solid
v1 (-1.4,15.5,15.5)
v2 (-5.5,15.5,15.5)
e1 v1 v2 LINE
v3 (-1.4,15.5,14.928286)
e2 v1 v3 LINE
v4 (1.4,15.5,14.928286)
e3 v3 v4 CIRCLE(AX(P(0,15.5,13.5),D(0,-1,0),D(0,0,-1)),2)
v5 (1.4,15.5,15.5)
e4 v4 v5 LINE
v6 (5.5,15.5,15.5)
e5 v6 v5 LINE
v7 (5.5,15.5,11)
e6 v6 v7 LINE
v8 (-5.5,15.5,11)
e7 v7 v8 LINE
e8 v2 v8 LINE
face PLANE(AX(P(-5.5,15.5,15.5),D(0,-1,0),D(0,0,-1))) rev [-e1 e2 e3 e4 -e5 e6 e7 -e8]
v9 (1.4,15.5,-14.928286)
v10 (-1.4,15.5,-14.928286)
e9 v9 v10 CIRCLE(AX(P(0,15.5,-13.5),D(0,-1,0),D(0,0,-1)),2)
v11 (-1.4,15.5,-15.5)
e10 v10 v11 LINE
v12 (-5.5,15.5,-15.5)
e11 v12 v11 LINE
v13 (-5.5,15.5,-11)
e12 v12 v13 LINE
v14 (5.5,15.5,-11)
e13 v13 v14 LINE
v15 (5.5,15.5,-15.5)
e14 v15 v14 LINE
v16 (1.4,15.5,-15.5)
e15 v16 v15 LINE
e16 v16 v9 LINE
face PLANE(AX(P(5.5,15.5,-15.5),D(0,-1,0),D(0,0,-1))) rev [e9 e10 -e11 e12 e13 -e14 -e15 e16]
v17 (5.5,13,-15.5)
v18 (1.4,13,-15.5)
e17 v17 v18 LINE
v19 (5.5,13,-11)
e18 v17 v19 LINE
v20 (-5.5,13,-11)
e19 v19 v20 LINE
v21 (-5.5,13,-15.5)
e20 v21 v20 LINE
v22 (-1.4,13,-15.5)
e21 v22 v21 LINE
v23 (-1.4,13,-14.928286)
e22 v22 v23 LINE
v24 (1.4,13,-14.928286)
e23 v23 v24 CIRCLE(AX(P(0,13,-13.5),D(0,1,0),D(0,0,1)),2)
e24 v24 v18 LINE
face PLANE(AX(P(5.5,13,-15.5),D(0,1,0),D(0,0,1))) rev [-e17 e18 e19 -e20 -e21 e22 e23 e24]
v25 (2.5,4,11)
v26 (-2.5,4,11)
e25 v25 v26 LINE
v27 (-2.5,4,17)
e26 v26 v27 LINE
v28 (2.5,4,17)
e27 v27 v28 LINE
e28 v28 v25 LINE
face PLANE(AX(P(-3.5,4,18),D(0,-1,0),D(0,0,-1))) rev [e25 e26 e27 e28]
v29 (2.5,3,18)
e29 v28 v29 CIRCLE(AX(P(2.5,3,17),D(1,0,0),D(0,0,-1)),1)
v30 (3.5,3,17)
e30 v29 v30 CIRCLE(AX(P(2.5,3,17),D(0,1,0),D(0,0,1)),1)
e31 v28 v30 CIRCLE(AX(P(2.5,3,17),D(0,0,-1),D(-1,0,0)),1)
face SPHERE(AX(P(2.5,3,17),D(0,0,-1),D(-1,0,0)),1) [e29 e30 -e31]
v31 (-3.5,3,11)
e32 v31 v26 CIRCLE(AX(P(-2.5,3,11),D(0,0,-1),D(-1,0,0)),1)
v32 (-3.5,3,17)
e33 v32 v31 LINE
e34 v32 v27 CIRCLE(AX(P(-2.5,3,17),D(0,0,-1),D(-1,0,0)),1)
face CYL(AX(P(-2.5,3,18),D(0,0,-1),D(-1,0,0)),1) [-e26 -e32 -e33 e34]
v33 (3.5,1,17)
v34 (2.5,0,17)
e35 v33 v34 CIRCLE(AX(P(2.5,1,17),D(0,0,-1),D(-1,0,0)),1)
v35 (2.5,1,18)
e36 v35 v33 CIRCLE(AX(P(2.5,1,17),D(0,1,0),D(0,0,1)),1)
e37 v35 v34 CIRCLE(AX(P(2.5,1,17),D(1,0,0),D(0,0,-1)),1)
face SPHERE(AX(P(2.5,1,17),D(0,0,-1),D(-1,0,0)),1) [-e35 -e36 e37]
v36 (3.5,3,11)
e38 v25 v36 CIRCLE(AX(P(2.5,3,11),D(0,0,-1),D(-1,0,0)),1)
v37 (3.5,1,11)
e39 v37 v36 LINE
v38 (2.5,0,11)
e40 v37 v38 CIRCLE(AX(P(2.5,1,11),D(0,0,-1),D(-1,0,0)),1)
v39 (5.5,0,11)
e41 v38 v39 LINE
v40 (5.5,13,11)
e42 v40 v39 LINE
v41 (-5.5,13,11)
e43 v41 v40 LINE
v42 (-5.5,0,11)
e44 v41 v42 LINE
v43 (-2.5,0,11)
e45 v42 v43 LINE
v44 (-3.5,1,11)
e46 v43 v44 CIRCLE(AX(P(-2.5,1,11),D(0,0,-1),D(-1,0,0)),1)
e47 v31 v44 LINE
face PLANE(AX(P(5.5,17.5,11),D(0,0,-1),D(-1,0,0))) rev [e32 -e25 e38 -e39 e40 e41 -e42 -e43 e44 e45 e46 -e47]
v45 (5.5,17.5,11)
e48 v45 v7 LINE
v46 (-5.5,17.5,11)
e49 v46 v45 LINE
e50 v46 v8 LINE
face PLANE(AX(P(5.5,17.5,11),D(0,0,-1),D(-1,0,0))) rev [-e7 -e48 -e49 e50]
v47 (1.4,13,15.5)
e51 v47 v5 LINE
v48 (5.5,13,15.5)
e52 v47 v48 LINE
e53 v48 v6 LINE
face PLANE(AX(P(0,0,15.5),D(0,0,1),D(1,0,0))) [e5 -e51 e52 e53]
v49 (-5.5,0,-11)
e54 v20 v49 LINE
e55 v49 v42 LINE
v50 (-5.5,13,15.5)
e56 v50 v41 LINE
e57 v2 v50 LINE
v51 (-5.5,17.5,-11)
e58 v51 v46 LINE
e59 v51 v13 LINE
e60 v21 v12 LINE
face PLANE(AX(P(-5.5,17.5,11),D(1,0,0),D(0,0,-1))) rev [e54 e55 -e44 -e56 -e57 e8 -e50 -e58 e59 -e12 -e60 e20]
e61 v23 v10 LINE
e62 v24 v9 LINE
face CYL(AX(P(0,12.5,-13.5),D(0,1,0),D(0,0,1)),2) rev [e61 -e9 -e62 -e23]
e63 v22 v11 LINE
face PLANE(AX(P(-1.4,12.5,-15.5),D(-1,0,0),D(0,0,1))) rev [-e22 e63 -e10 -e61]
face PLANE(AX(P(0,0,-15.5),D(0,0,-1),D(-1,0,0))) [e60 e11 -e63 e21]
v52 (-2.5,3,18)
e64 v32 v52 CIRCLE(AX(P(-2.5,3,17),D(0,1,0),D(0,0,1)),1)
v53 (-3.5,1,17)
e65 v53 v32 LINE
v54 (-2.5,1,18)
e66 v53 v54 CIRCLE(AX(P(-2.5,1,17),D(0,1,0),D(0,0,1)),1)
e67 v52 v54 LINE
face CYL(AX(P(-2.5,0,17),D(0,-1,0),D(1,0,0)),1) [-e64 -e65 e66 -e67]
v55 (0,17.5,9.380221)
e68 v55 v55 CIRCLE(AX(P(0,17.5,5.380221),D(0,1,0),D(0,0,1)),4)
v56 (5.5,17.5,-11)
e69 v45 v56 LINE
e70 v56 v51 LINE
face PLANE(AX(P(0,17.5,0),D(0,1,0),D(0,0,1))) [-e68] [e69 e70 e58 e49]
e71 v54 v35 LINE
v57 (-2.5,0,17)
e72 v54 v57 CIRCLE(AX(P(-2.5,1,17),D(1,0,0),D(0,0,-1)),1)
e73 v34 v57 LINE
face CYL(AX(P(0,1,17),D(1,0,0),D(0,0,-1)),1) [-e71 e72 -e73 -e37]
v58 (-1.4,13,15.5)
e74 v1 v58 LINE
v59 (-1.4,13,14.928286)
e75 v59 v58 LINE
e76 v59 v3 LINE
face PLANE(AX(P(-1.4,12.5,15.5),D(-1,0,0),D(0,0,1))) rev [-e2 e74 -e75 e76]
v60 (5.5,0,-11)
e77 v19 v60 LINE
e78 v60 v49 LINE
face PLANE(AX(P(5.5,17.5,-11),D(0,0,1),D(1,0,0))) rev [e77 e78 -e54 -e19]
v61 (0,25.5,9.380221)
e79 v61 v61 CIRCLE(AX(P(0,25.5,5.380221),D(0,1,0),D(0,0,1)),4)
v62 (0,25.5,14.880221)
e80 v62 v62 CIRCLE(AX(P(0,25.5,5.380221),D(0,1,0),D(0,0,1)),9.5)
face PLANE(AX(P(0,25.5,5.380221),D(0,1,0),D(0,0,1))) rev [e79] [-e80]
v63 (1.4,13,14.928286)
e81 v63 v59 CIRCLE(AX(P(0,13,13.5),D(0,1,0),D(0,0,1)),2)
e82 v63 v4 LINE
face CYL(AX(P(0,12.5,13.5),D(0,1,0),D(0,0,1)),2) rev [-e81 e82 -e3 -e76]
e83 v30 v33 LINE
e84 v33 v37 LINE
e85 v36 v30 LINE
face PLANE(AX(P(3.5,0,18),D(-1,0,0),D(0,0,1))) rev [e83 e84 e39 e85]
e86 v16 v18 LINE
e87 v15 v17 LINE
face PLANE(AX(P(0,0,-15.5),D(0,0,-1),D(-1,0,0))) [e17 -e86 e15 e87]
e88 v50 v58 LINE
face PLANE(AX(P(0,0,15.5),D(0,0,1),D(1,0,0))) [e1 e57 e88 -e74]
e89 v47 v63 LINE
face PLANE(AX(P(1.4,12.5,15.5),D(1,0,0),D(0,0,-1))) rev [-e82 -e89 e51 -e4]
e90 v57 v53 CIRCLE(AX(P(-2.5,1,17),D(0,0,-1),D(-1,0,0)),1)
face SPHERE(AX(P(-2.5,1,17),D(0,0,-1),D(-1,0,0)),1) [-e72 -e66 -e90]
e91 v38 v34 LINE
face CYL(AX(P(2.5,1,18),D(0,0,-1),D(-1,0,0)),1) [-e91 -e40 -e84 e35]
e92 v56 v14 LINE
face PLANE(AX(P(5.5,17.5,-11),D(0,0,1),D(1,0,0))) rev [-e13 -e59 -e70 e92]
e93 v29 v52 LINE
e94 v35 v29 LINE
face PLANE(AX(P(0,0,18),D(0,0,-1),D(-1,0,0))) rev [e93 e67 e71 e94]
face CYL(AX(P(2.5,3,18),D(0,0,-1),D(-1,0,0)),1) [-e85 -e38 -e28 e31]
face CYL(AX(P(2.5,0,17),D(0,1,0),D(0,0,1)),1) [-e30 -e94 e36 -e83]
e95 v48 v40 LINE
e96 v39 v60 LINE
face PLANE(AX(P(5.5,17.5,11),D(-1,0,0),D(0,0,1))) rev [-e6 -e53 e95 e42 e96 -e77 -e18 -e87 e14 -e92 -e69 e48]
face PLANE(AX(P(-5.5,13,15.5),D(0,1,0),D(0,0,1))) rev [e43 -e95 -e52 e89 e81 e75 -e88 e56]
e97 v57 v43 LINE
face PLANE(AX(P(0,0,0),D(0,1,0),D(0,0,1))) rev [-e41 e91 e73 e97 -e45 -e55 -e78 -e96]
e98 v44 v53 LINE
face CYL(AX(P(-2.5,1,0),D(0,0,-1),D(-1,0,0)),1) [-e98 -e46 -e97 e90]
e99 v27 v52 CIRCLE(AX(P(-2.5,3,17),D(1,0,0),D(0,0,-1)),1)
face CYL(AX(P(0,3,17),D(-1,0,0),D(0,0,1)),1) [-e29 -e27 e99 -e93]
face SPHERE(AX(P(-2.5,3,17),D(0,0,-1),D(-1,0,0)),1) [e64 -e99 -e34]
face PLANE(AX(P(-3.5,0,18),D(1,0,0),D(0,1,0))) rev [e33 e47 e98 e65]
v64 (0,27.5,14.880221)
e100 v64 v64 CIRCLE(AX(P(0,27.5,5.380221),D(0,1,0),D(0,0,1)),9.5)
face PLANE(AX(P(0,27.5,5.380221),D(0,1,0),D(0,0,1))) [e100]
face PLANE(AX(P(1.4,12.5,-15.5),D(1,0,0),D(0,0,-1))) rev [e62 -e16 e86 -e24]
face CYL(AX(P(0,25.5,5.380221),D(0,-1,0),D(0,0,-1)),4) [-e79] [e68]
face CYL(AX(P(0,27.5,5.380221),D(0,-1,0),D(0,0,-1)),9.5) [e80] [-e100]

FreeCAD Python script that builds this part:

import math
import FreeCAD as App
import Part
import Sketcher

V = App.Vector


def edges_at(feature, points):
    """Names of the edges that pass closest to the given points."""
    edges = feature.Shape.Edges
    near = lambda p: min(range(len(edges)), key=lambda i: edges[i].distToShape(Part.Vertex(*p))[0])
    return sorted({f"Edge{near(p) + 1}" for p in points})

doc = App.newDocument("Part")
params = doc.addObject("Spreadsheet::Sheet", "Params")
for row, (alias, value) in enumerate([
    ("sketch1_width", "11 mm"),
    ("sketch1_height", "22 mm"),
    ("pad1_length", "17.5 mm"),
    ("sketch2_width", "7 mm"),
    ("sketch2_height", "4 mm"),
    ("pad2_length", "7 mm"),
    ("fillet_radius", "1 mm"),
    ("fillet2_radius", "1 mm"),
    ("sketch3_width", "11 mm"),
    ("sketch3_height", "2.5 mm"),
    ("pad3_length", "4.5 mm"),
    ("sketch4_width", "11 mm"),
    ("sketch4_height", "2.5 mm"),
    ("pad4_length", "4.5 mm"),
    ("sketch5_radius", "2 mm"),
    ("sketch5_width", "2.8 mm"),
    ("pocket1_length", "5 mm"),
    ("sketch6_diameter", "8 mm"),
    ("pad5_length", "8 mm"),
    ("sketch7_diameter", "19 mm"),
    ("pad6_length", "2 mm"),
], start=1):
    params.set(f"A{row}", alias)
    params.set(f"B{row}", "=" + value)
    params.setAlias(f"B{row}", alias)

body = doc.addObject("PartDesign::Body", "Body")

# Sketch on XZ plane
sketch1 = body.newObject("Sketcher::SketchObject", "Sketch")
sketch1.AttachmentSupport = (doc.getObject("XZ_Plane"), [""])
sketch1.MapMode = "FlatFace"
sketch1.addGeometry(Part.LineSegment(V(-5.5, -11, 0), V(-5.5, 11, 0)), False)
sketch1.addGeometry(Part.LineSegment(V(-5.5, 11, 0), V(5.5, 11, 0)), False)
sketch1.addGeometry(Part.LineSegment(V(5.5, 11, 0), V(5.5, -11, 0)), False)
sketch1.addGeometry(Part.LineSegment(V(5.5, -11, 0), V(-5.5, -11, 0)), False)
sketch1.addConstraint(Sketcher.Constraint("Coincident", 0, 2, 1, 1))
sketch1.addConstraint(Sketcher.Constraint("Coincident", 1, 2, 2, 1))
sketch1.addConstraint(Sketcher.Constraint("Coincident", 2, 2, 3, 1))
sketch1.addConstraint(Sketcher.Constraint("Coincident", 3, 2, 0, 1))
sketch1.addConstraint(Sketcher.Constraint("Vertical", 0))
sketch1.addConstraint(Sketcher.Constraint("Horizontal", 1))
sketch1.addConstraint(Sketcher.Constraint("Vertical", 2))
sketch1.addConstraint(Sketcher.Constraint("Horizontal", 3))
sketch1.addConstraint(Sketcher.Constraint("Symmetric", 0, 2, 2, 2, -1, 1))
sketch1.addConstraint(Sketcher.Constraint("DistanceX", 1, 1, 1, 2, 11.0))
sketch1.addConstraint(Sketcher.Constraint("DistanceY", 0, 1, 0, 2, 22.0))
sketch1.setExpression("Constraints[9]", "Params.sketch1_width")
sketch1.setExpression("Constraints[10]", "Params.sketch1_height")
pad1 = body.newObject("PartDesign::Pad", "Pad")
pad1.Profile = sketch1
pad1.setExpression("Length", "Params.pad1_length")
pad1.Reversed = True

# Sketch on XY plane
sketch2 = body.newObject("Sketcher::SketchObject", "Sketch001")
sketch2.AttachmentSupport = (doc.getObject("XY_Plane"), [""])
sketch2.MapMode = "FlatFace"
sketch2.AttachmentOffset = App.Placement(V(0, 0, 11), App.Rotation())
sketch2.addGeometry(Part.LineSegment(V(-3.5, 4, 0), V(-3.5, 0, 0)), False)
sketch2.addGeometry(Part.LineSegment(V(-3.5, 0, 0), V(3.5, 0, 0)), False)
sketch2.addGeometry(Part.LineSegment(V(3.5, 0, 0), V(3.5, 4, 0)), False)
sketch2.addGeometry(Part.LineSegment(V(3.5, 4, 0), V(-3.5, 4, 0)), False)
sketch2.addConstraint(Sketcher.Constraint("Coincident", 0, 2, 1, 1))
sketch2.addConstraint(Sketcher.Constraint("Coincident", 1, 2, 2, 1))
sketch2.addConstraint(Sketcher.Constraint("Coincident", 2, 2, 3, 1))
sketch2.addConstraint(Sketcher.Constraint("Coincident", 3, 2, 0, 1))
sketch2.addConstraint(Sketcher.Constraint("Vertical", 0))
sketch2.addConstraint(Sketcher.Constraint("Horizontal", 1))
sketch2.addConstraint(Sketcher.Constraint("Vertical", 2))
sketch2.addConstraint(Sketcher.Constraint("Horizontal", 3))
sketch2.addConstraint(Sketcher.Constraint("Symmetric", 0, 2, 1, 2, -1, 1))
sketch2.addConstraint(Sketcher.Constraint("DistanceX", 1, 1, 1, 2, 7.0))
sketch2.addConstraint(Sketcher.Constraint("DistanceY", 0, 2, 0, 1, 4.0))
sketch2.setExpression("Constraints[9]", "Params.sketch2_width")
sketch2.setExpression("Constraints[10]", "Params.sketch2_height")
pad2 = body.newObject("PartDesign::Pad", "Pad001")
pad2.Profile = sketch2
pad2.setExpression("Length", "Params.pad2_length")
doc.recompute()

fillet = body.newObject("PartDesign::Fillet", "Fillet")
fillet.Base = (pad2, edges_at(pad2, [
    (-3.5, 0, 14.5),
    (-3.5, 4, 14.5),
    (3.5, 4, 14.5),
    (3.5, 0, 14.5),
]))
fillet.setExpression("Radius", "Params.fillet_radius")
doc.recompute()

fillet2 = body.newObject("PartDesign::Fillet", "Fillet001")
fillet2.Base = (fillet, edges_at(fillet, [
    (0, 0, 18),
    (-3.5, 2, 18),
    (3.5, 2, 18),
    (0, 4, 18),
    (3.207, 0.293, 18),
    (3.207, 3.707, 18),
    (-3.207, 3.707, 18),
    (-3.207, 0.293, 18),
]))
fillet2.setExpression("Radius", "Params.fillet2_radius")

# Sketch on XY plane
sketch3 = body.newObject("Sketcher::SketchObject", "Sketch002")
sketch3.AttachmentSupport = (doc.getObject("XY_Plane"), [""])
sketch3.MapMode = "FlatFace"
sketch3.AttachmentOffset = App.Placement(V(0, 0, 11), App.Rotation())
sketch3.addGeometry(Part.LineSegment(V(-5.5, 15.5, 0), V(-5.5, 13, 0)), False)
sketch3.addGeometry(Part.LineSegment(V(-5.5, 13, 0), V(5.5, 13, 0)), False)
sketch3.addGeometry(Part.LineSegment(V(5.5, 13, 0), V(5.5, 15.5, 0)), False)
sketch3.addGeometry(Part.LineSegment(V(5.5, 15.5, 0), V(-5.5, 15.5, 0)), False)
sketch3.addConstraint(Sketcher.Constraint("Coincident", 0, 2, 1, 1))
sketch3.addConstraint(Sketcher.Constraint("Coincident", 1, 2, 2, 1))
sketch3.addConstraint(Sketcher.Constraint("Coincident", 2, 2, 3, 1))
sketch3.addConstraint(Sketcher.Constraint("Coincident", 3, 2, 0, 1))
sketch3.addConstraint(Sketcher.Constraint("Vertical", 0))
sketch3.addConstraint(Sketcher.Constraint("Horizontal", 1))
sketch3.addConstraint(Sketcher.Constraint("Vertical", 2))
sketch3.addConstraint(Sketcher.Constraint("Horizontal", 3))
sketch3.addConstraint(Sketcher.Constraint("DistanceX", 1, 1, 1, 2, 11.0))
sketch3.addConstraint(Sketcher.Constraint("DistanceY", 0, 2, 0, 1, 2.5))
sketch3.addConstraint(Sketcher.Constraint("DistanceY", -1, 1, 0, 2, 13.0))
sketch3.addConstraint(Sketcher.Constraint("DistanceX", 0, 2, -1, 1, 5.5))
sketch3.setExpression("Constraints[8]", "Params.sketch3_width")
sketch3.setExpression("Constraints[9]", "Params.sketch3_height")
pad3 = body.newObject("PartDesign::Pad", "Pad002")
pad3.Profile = sketch3
pad3.setExpression("Length", "Params.pad3_length")

# Sketch on XY plane
sketch4 = body.newObject("Sketcher::SketchObject", "Sketch003")
sketch4.AttachmentSupport = (doc.getObject("XY_Plane"), [""])
sketch4.MapMode = "FlatFace"
sketch4.AttachmentOffset = App.Placement(V(0, 0, -11), App.Rotation())
sketch4.addGeometry(Part.LineSegment(V(5.5, 15.5, 0), V(5.5, 13, 0)), False)
sketch4.addGeometry(Part.LineSegment(V(5.5, 13, 0), V(-5.5, 13, 0)), False)
sketch4.addGeometry(Part.LineSegment(V(-5.5, 13, 0), V(-5.5, 15.5, 0)), False)
sketch4.addGeometry(Part.LineSegment(V(-5.5, 15.5, 0), V(5.5, 15.5, 0)), False)
sketch4.addConstraint(Sketcher.Constraint("Coincident", 0, 2, 1, 1))
sketch4.addConstraint(Sketcher.Constraint("Coincident", 1, 2, 2, 1))
sketch4.addConstraint(Sketcher.Constraint("Coincident", 2, 2, 3, 1))
sketch4.addConstraint(Sketcher.Constraint("Coincident", 3, 2, 0, 1))
sketch4.addConstraint(Sketcher.Constraint("Vertical", 0))
sketch4.addConstraint(Sketcher.Constraint("Horizontal", 1))
sketch4.addConstraint(Sketcher.Constraint("Vertical", 2))
sketch4.addConstraint(Sketcher.Constraint("Horizontal", 3))
sketch4.addConstraint(Sketcher.Constraint("DistanceX", 1, 2, 1, 1, 11.0))
sketch4.addConstraint(Sketcher.Constraint("DistanceY", 0, 2, 0, 1, 2.5))
sketch4.addConstraint(Sketcher.Constraint("DistanceY", -1, 1, 0, 2, 13.0))
sketch4.addConstraint(Sketcher.Constraint("DistanceX", -1, 1, 0, 2, 5.5))
sketch4.setExpression("Constraints[8]", "Params.sketch4_width")
sketch4.setExpression("Constraints[9]", "Params.sketch4_height")
pad4 = body.newObject("PartDesign::Pad", "Pad003")
pad4.Profile = sketch4
pad4.setExpression("Length", "Params.pad4_length")
pad4.Reversed = True

# Sketch on XZ plane
sketch5 = body.newObject("Sketcher::SketchObject", "Sketch004")
sketch5.AttachmentSupport = (doc.getObject("XZ_Plane"), [""])
sketch5.MapMode = "FlatFace"
sketch5.AttachmentOffset = App.Placement(V(0, 0, -17.5), App.Rotation())
sketch5.addGeometry(Part.LineSegment(V(1.4, -14.928286, 0), V(1.4, -15.5, 0)), False)
sketch5.addGeometry(Part.LineSegment(V(1.4, -15.5, 0), V(-1.4, -15.5, 0)), False)
sketch5.addGeometry(Part.LineSegment(V(-1.4, -15.5, 0), V(-1.4, -14.928286, 0)), False)
sketch5.addGeometry(Part.ArcOfCircle(Part.Circle(V(0, -13.5, 0), V(0, 0, 1), 2), math.radians(-45.572996), math.radians(225.572996)), False)
sketch5.addGeometry(Part.LineSegment(V(-1.4, 14.928286, 0), V(-1.4, 15.5, 0)), False)
sketch5.addGeometry(Part.LineSegment(V(-1.4, 15.5, 0), V(1.4, 15.5, 0)), False)
sketch5.addGeometry(Part.LineSegment(V(1.4, 15.5, 0), V(1.4, 14.928286, 0)), False)
sketch5.addGeometry(Part.ArcOfCircle(Part.Circle(V(0, 13.5, 0), V(0, 0, 1), 2), math.radians(134.427004), math.radians(405.572996)), False)
sketch5.addConstraint(Sketcher.Constraint("Coincident", 0, 2, 1, 1))
sketch5.addConstraint(Sketcher.Constraint("Coincident", 1, 2, 2, 1))
sketch5.addConstraint(Sketcher.Constraint("Coincident", 2, 2, 3, 2))
sketch5.addConstraint(Sketcher.Constraint("Coincident", 3, 1, 0, 1))
sketch5.addConstraint(Sketcher.Constraint("Coincident", 4, 2, 5, 1))
sketch5.addConstraint(Sketcher.Constraint("Coincident", 5, 2, 6, 1))
sketch5.addConstraint(Sketcher.Constraint("Coincident", 6, 2, 7, 2))
sketch5.addConstraint(Sketcher.Constraint("Coincident", 7, 1, 4, 1))
sketch5.addConstraint(Sketcher.Constraint("Vertical", 0))
sketch5.addConstraint(Sketcher.Constraint("Horizontal", 1))
sketch5.addConstraint(Sketcher.Constraint("Vertical", 2))
sketch5.addConstraint(Sketcher.Constraint("Vertical", 4))
sketch5.addConstraint(Sketcher.Constraint("Horizontal", 5))
sketch5.addConstraint(Sketcher.Constraint("Vertical", 6))
sketch5.addConstraint(Sketcher.Constraint("Equal", 3, 7))
sketch5.addConstraint(Sketcher.Constraint("Symmetric", 3, 3, 7, 3, -1, 1))
sketch5.addConstraint(Sketcher.Constraint("Symmetric", 0, 2, 4, 2, -1, 1))
sketch5.addConstraint(Sketcher.Constraint("Symmetric", 2, 2, 3, 1, -2))
sketch5.addConstraint(Sketcher.Constraint("Horizontal", 6, 2, 7, 1))
sketch5.addConstraint(Sketcher.Constraint("Radius", 3, 2.0))
sketch5.addConstraint(Sketcher.Constraint("DistanceX", 1, 2, 1, 1, 2.8))
sketch5.addConstraint(Sketcher.Constraint("DistanceY", 3, 3, 7, 3, 27.0))
sketch5.addConstraint(Sketcher.Constraint("DistanceY", 0, 2, 3, 3, 2.0))
sketch5.setExpression("Constraints[19]", "Params.sketch5_radius")
sketch5.setExpression("Constraints[20]", "Params.sketch5_width")
pocket1 = body.newObject("PartDesign::Pocket", "Pocket")
pocket1.Profile = sketch5
pocket1.setExpression("Length", "Params.pocket1_length")
pocket1.Reversed = True

# Sketch on XZ plane
sketch6 = body.newObject("Sketcher::SketchObject", "Sketch005")
sketch6.AttachmentSupport = (doc.getObject("XZ_Plane"), [""])
sketch6.MapMode = "FlatFace"
sketch6.AttachmentOffset = App.Placement(V(0, 0, -17.5), App.Rotation())
sketch6.addGeometry(Part.Circle(V(0, 5.380221, 0), V(0, 0, 1), 4), False)
sketch6.addConstraint(Sketcher.Constraint("PointOnObject", 0, 3, -2))
sketch6.addConstraint(Sketcher.Constraint("Diameter", 0, 8.0))
sketch6.addConstraint(Sketcher.Constraint("DistanceY", -1, 1, 0, 3, 5.380221))
sketch6.setExpression("Constraints[1]", "Params.sketch6_diameter")
pad5 = body.newObject("PartDesign::Pad", "Pad004")
pad5.Profile = sketch6
pad5.setExpression("Length", "Params.pad5_length")
pad5.Reversed = True

# Sketch on XZ plane
sketch7 = body.newObject("Sketcher::SketchObject", "Sketch006")
sketch7.AttachmentSupport = (doc.getObject("XZ_Plane"), [""])
sketch7.MapMode = "FlatFace"
sketch7.AttachmentOffset = App.Placement(V(0, 0, -25.5), App.Rotation())
sketch7.addGeometry(Part.Circle(V(0, 5.380221, 0), V(0, 0, 1), 9.5), False)
sketch7.addConstraint(Sketcher.Constraint("PointOnObject", 0, 3, -2))
sketch7.addConstraint(Sketcher.Constraint("Diameter", 0, 19.0))
sketch7.addConstraint(Sketcher.Constraint("DistanceY", -1, 1, 0, 3, 5.380221))
sketch7.setExpression("Constraints[1]", "Params.sketch7_diameter")
pad6 = body.newObject("PartDesign::Pad", "Pad005")
pad6.Profile = sketch7
pad6.setExpression("Length", "Params.pad6_length")
pad6.Reversed = True

doc.recompute()
